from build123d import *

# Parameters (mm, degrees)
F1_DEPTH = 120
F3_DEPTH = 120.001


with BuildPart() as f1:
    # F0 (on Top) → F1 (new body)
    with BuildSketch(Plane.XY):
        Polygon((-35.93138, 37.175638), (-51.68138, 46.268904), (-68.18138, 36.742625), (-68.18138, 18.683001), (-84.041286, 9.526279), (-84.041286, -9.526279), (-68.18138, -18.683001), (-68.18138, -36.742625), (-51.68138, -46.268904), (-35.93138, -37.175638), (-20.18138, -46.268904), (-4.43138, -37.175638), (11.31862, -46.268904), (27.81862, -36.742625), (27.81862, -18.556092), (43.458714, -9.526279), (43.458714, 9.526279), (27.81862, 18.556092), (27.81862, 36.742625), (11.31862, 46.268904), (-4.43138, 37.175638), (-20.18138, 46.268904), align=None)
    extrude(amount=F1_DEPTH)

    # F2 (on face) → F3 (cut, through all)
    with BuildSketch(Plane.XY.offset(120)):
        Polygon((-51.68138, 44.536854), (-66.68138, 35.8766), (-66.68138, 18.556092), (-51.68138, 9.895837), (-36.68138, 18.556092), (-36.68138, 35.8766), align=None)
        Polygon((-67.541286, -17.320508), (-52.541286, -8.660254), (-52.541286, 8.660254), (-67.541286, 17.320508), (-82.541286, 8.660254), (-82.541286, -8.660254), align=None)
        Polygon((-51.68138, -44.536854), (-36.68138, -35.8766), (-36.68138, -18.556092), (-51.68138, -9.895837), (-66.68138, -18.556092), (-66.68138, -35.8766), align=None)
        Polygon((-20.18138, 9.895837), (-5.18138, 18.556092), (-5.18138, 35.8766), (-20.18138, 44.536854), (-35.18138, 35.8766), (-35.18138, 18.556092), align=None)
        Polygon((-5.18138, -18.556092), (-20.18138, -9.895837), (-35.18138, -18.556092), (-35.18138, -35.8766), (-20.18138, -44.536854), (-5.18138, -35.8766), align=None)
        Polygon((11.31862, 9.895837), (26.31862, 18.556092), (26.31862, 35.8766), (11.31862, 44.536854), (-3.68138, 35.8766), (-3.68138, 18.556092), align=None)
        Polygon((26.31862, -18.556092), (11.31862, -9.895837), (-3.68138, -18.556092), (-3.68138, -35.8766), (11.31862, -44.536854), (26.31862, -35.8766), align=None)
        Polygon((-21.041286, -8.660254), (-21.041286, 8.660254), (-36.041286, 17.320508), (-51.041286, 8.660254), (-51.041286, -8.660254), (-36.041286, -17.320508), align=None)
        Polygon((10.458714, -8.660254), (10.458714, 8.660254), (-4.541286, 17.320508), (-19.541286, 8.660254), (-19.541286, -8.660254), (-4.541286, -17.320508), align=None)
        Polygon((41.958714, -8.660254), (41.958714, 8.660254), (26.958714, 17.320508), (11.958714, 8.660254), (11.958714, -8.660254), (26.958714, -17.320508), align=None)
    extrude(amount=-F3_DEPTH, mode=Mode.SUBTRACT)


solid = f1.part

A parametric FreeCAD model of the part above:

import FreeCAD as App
import Part
import Sketcher

V = App.Vector
Q = App.Units.Quantity


def add_polygon(sketch, points):
    """Adds a closed chain of lines whose ends are joined by coincident constraints."""
    first, n = sketch.GeometryCount, len(points)
    for a, b in zip(points, points[1:] + points[:1]):
        sketch.addGeometry(Part.LineSegment(App.Vector(*a, 0), App.Vector(*b, 0)), False)
    for i in range(n):
        sketch.addConstraint(Sketcher.Constraint("Coincident", first + i, 2, first + (i + 1) % n, 1))

doc = App.newDocument("Part")
params = doc.addObject("Spreadsheet::Sheet", "Params")
for row, (alias, value) in enumerate([
    ("pad1_length", "120 mm"),
], start=1):
    params.set(f"A{row}", alias)
    params.set(f"B{row}", "=" + value)
    params.setAlias(f"B{row}", alias)

body = doc.addObject("PartDesign::Body", "Body")

# Sketch on XY plane
sketch1 = doc.addObject("Sketcher::SketchObject", "Sketch")
body.addObject(sketch1)
sketch1.AttachmentSupport = (doc.XY_Plane, [""])
sketch1.MapMode = "FlatFace"
add_polygon(sketch1, [(-36, 37), (-52, 46), (-68, 37), (-68, 19), (-84, 10), (-84, -10), (-68, -19), (-68, -37), (-52, -46), (-36, -37), (-20, -46), (-4, -37), (11, -46), (28, -37), (28, -19), (43, -10), (43, 10), (28, 19), (28, 37), (11, 46), (-4, 37), (-20, 46)])  # lines 0-21
sketch1.addConstraint([
    Sketcher.Constraint("Vertical", 2),
    Sketcher.Constraint("Vertical", 4),
    Sketcher.Constraint("Vertical", 6),
    Sketcher.Constraint("Vertical", 13),
    Sketcher.Constraint("Vertical", 15),
    Sketcher.Constraint("Vertical", 17),
    Sketcher.Constraint("Symmetric", 2, 2, 5, 2, -1),
    Sketcher.Constraint("Symmetric", 0, 2, 7, 2, -1),
    Sketcher.Constraint("Symmetric", 13, 2, 16, 2, -1),
    Sketcher.Constraint("Symmetric", 11, 2, 18, 2, -1),
    Sketcher.Constraint("Symmetric", 10, 2, 19, 2, -1),
    Sketcher.Constraint("Symmetric", 9, 2, 20, 2, -1),
    Sketcher.Constraint("Symmetric", 8, 2, 21, 2, -1),
    Sketcher.Constraint("Parallel", 1, 3),
    Sketcher.Constraint("Parallel", 0, 5),
    Sketcher.Constraint("Parallel", 5, 7),
    Sketcher.Constraint("Parallel", 3, 8),
    Sketcher.Constraint("Parallel", 7, 9),
    Sketcher.Constraint("Parallel", 8, 10),
    Sketcher.Constraint("Parallel", 9, 11),
    Sketcher.Constraint("Parallel", 10, 12),
    Sketcher.Constraint("Parallel", 12, 14),
    Sketcher.Constraint("Parallel", 11, 16),
    Sketcher.Constraint("Parallel", 16, 18),
    Sketcher.Constraint("Horizontal", 7, 2, 9, 2),
    Sketcher.Constraint("Horizontal", 8, 2, 10, 2),
    Sketcher.Constraint("Horizontal", 9, 2, 11, 2),
    Sketcher.Constraint("Horizontal", 6, 2, 12, 2),
    Sketcher.Constraint("Horizontal", 4, 2, 14, 2),
    Sketcher.Constraint("Angle", 0, Q("150.000002 deg")),
    Sketcher.Constraint("DistanceX", 6, 2, 9, 2, Q("48 mm")),
    Sketcher.Constraint("DistanceX", 7, 2, 11, 2, Q("63 mm")),
    Sketcher.Constraint("DistanceY", -1, 1, 2, 2, Q("18.683001 mm")),
    Sketcher.Constraint("DistanceY", 4, 2, 4, 1, Q("19.052558 mm")),
    Sketcher.Constraint("DistanceY", 2, 2, 2, 1, Q("18.059624 mm")),
    Sketcher.Constraint("DistanceY", 13, 1, 13, 2, Q("18.186533 mm")),
    Sketcher.Constraint("DistanceX", 0, 2, -1, 1, Q("51.68138 mm")),
])
pad1 = doc.addObject("PartDesign::Pad", "Pad")
body.addObject(pad1)
pad1.Profile = sketch1
pad1.setExpression("Length", "Params.pad1_length")

# Sketch on XY plane
sketch2 = doc.addObject("Sketcher::SketchObject", "Sketch001")
body.addObject(sketch2)
sketch2.AttachmentSupport = (doc.XY_Plane, [""])
sketch2.MapMode = "FlatFace"
sketch2.AttachmentOffset = App.Placement(V(0, 0, 120), App.Rotation())
add_polygon(sketch2, [(-52, 45), (-67, 36), (-67, 19), (-52, 10), (-37, 19), (-37, 36)])  # lines 0-5
add_polygon(sketch2, [(-68, -17), (-53, -9), (-53, 9), (-68, 17), (-83, 9), (-83, -9)])  # lines 6-11
add_polygon(sketch2, [(-52, -45), (-37, -36), (-37, -19), (-52, -10), (-67, -19), (-67, -36)])  # lines 12-17
add_polygon(sketch2, [(-20, 10), (-5, 19), (-5, 36), (-20, 45), (-35, 36), (-35, 19)])  # lines 18-23
add_polygon(sketch2, [(-5, -19), (-20, -10), (-35, -19), (-35, -36), (-20, -45), (-5, -36)])  # lines 24-29
add_polygon(sketch2, [(11, 10), (26, 19), (26, 36), (11, 45), (-4, 36), (-4, 19)])  # lines 30-35
add_polygon(sketch2, [(26, -19), (11, -10), (-4, -19), (-4, -36), (11, -45), (26, -36)])  # lines 36-41
add_polygon(sketch2, [(-21, -9), (-21, 9), (-36, 17), (-51, 9), (-51, -9), (-36, -17)])  # lines 42-47
add_polygon(sketch2, [(10, -9), (10, 9), (-5, 17), (-20, 9), (-20, -9), (-5, -17)])  # lines 48-53
add_polygon(sketch2, [(42, -9), (42, 9), (27, 17), (12, 9), (12, -9), (27, -17)])  # lines 54-59
sketch2.addConstraint([
    Sketcher.Constraint("Vertical", 1),
    Sketcher.Constraint("Vertical", 4),
    Sketcher.Constraint("Vertical", 7),
    Sketcher.Constraint("Vertical", 10),
    Sketcher.Constraint("Vertical", 13),
    Sketcher.Constraint("Vertical", 16),
    Sketcher.Constraint("Vertical", 19),
    Sketcher.Constraint("Vertical", 22),
    Sketcher.Constraint("Vertical", 26),
    Sketcher.Constraint("Vertical", 29),
    Sketcher.Constraint("Vertical", 31),
    Sketcher.Constraint("Vertical", 34),
    Sketcher.Constraint("Vertical", 38),
    Sketcher.Constraint("Vertical", 41),
    Sketcher.Constraint("Vertical", 42),
    Sketcher.Constraint("Vertical", 45),
    Sketcher.Constraint("Vertical", 48),
    Sketcher.Constraint("Vertical", 51),
    Sketcher.Constraint("Vertical", 54),
    Sketcher.Constraint("Vertical", 57),
    Sketcher.Constraint("Symmetric", 8, 2, 11, 2, -1),
    Sketcher.Constraint("Symmetric", 4, 2, 12, 2, -1),
    Sketcher.Constraint("Symmetric", 2, 2, 14, 2, -1),
    Sketcher.Constraint("Symmetric", 1, 2, 15, 2, -1),
    Sketcher.Constraint("Symmetric", 5, 2, 17, 2, -1),
    Sketcher.Constraint("Symmetric", 23, 2, 24, 2, -1),
    Sketcher.Constraint("Symmetric", 22, 2, 25, 2, -1),
    Sketcher.Constraint("Symmetric", 20, 2, 27, 2, -1),
    Sketcher.Constraint("Symmetric", 19, 2, 28, 2, -1),
    Sketcher.Constraint("Symmetric", 35, 2, 36, 2, -1),
    Sketcher.Constraint("Symmetric", 34, 2, 37, 2, -1),
    Sketcher.Constraint("Symmetric", 32, 2, 39, 2, -1),
    Sketcher.Constraint("Symmetric", 31, 2, 40, 2, -1),
    Sketcher.Constraint("Symmetric", 43, 2, 46, 2, -1),
    Sketcher.Constraint("Symmetric", 49, 2, 52, 2, -1),
    Sketcher.Constraint("Symmetric", 55, 2, 58, 2, -1),
    Sketcher.Constraint("Parallel", 0, 3),
    Sketcher.Constraint("Parallel", 2, 5),
    Sketcher.Constraint("Parallel", 3, 6),
    Sketcher.Constraint("Parallel", 5, 8),
    Sketcher.Constraint("Parallel", 6, 9),
    Sketcher.Constraint("Parallel", 8, 11),
    Sketcher.Constraint("Parallel", 9, 12),
    Sketcher.Constraint("Parallel", 11, 14),
    Sketcher.Constraint("Parallel", 14, 17),
    Sketcher.Constraint("Parallel", 15, 18),
    Sketcher.Constraint("Parallel", 17, 20),
    Sketcher.Constraint("Parallel", 18, 21),
    Sketcher.Constraint("Parallel", 20, 23),
    Sketcher.Constraint("Parallel", 23, 24),
    Sketcher.Constraint("Parallel", 24, 27),
    Sketcher.Constraint("Parallel", 28, 30),
    Sketcher.Constraint("Parallel", 27, 32),
    Sketcher.Constraint("Parallel", 30, 33),
    Sketcher.Constraint("Parallel", 32, 35),
    Sketcher.Constraint("Parallel", 35, 36),
    Sketcher.Constraint("Parallel", 36, 39),
    Sketcher.Constraint("Parallel", 39, 43),
    Sketcher.Constraint("Parallel", 40, 44),
    Sketcher.Constraint("Parallel", 43, 46),
    Sketcher.Constraint("Parallel", 44, 47),
    Sketcher.Constraint("Parallel", 46, 49),
    Sketcher.Constraint("Parallel", 47, 50),
    Sketcher.Constraint("Parallel", 49, 52),
    Sketcher.Constraint("Parallel", 50, 53),
    Sketcher.Constraint("Parallel", 52, 55),
    Sketcher.Constraint("Parallel", 53, 56),
    Sketcher.Constraint("Parallel", 55, 58),
    Sketcher.Constraint("Parallel", 56, 59),
    Sketcher.Constraint("Horizontal", 1, 2, 3, 2),
    Sketcher.Constraint("Horizontal", 0, 2, 4, 2),
    Sketcher.Constraint("Horizontal", 7, 2, 9, 2),
    Sketcher.Constraint("Horizontal", 3, 2, 18, 2),
    Sketcher.Constraint("Horizontal", 4, 2, 19, 2),
    Sketcher.Constraint("Horizontal", 5, 2, 20, 2),
    Sketcher.Constraint("Horizontal", 19, 2, 21, 2),
    Sketcher.Constraint("Horizontal", 18, 2, 22, 2),
    Sketcher.Constraint("Horizontal", 22, 2, 30, 2),
    Sketcher.Constraint("Horizontal", 21, 2, 31, 2),
    Sketcher.Constraint("Horizontal", 20, 2, 32, 2),
    Sketcher.Constraint("Horizontal", 31, 2, 33, 2),
    Sketcher.Constraint("Horizontal", 30, 2, 34, 2),
    Sketcher.Constraint("Horizontal", 9, 2, 42, 2),
    Sketcher.Constraint("Horizontal", 8, 2, 43, 2),
    Sketcher.Constraint("Horizontal", 42, 2, 44, 2),
    Sketcher.Constraint("Horizontal", 44, 2, 48, 2),
    Sketcher.Constraint("Horizontal", 43, 2, 49, 2),
    Sketcher.Constraint("Horizontal", 48, 2, 50, 2),
    Sketcher.Constraint("Horizontal", 50, 2, 54, 2),
    Sketcher.Constraint("Horizontal", 49, 2, 55, 2),
    Sketcher.Constraint("Horizontal", 54, 2, 56, 2),
    Sketcher.Constraint("Equal", 4, 7),
    Sketcher.Constraint("Equal", 5, 6),
    Sketcher.Constraint("Angle", 0, Q("-150 deg")),
    Sketcher.Constraint("DistanceX", 1, 2, 2, 2, Q("15 mm")),
    Sketcher.Constraint("DistanceX", 3, 2, 18, 2, Q("31.5 mm")),
    Sketcher.Constraint("DistanceX", 18, 2, 30, 2, Q("31.5 mm")),
    Sketcher.Constraint("DistanceX", 7, 2, 44, 2, Q("1.5 mm")),
    Sketcher.Constraint("DistanceX", 42, 2, 50, 2, Q("1.5 mm")),
    Sketcher.Constraint("DistanceX", 48, 2, 54, 2, Q("31.5 mm")),
    Sketcher.Constraint("DistanceY", 1, 2, 1, 1, Q("17.320508 mm")),
    Sketcher.Constraint("DistanceY", -1, 1, 0, 2, Q("35.8766 mm")),
    Sketcher.Constraint("DistanceX", 0, 2, -1, 1, Q("66.68138 mm")),
    Sketcher.Constraint("DistanceX", 6, 2, -1, 1, Q("52.541286 mm")),
])
pocket1 = doc.addObject("PartDesign::Pocket", "Pocket")
body.addObject(pocket1)
pocket1.Profile = sketch2
pocket1.Type = "ThroughAll"

doc.recompute()
